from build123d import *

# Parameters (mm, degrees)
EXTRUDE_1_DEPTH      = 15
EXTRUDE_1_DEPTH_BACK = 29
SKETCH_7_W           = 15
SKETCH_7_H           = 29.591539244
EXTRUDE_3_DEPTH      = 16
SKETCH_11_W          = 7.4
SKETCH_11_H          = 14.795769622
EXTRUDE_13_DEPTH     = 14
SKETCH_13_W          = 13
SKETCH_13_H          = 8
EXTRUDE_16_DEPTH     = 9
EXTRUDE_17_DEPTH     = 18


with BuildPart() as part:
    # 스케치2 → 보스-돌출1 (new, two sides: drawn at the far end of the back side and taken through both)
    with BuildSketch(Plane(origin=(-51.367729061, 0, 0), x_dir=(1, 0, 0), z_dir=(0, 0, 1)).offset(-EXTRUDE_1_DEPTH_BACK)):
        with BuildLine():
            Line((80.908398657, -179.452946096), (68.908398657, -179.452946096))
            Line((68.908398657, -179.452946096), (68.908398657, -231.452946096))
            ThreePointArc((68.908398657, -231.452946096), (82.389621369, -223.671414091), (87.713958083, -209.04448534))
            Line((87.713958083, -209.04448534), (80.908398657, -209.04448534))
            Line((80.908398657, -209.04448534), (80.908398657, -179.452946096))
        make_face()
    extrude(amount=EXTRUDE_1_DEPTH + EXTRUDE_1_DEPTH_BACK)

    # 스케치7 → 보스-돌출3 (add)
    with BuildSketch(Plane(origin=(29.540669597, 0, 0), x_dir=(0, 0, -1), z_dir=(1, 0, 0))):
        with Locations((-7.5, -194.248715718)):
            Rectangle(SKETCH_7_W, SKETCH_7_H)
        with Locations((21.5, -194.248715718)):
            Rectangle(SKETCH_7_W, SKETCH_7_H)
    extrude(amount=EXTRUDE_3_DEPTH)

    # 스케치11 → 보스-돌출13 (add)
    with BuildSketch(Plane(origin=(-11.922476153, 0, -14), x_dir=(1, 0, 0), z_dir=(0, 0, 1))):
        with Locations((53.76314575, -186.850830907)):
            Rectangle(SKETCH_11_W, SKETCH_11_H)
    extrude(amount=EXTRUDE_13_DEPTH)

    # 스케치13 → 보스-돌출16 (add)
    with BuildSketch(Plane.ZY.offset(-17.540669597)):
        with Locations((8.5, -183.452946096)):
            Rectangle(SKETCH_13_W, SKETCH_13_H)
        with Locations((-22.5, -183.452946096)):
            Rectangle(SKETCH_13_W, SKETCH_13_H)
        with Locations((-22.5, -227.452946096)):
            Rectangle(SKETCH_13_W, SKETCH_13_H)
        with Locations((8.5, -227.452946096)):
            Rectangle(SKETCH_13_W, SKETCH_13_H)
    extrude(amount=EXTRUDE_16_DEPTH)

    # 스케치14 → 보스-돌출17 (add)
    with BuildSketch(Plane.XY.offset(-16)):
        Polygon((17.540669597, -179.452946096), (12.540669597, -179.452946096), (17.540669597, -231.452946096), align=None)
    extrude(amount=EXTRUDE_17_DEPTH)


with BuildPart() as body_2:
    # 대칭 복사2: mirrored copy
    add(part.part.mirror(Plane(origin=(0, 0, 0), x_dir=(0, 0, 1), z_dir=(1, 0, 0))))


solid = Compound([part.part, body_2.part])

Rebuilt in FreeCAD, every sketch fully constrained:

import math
import FreeCAD as App
import Part
import Sketcher


def add_polygon(sketch, points):
    """Adds a closed chain of lines whose ends are joined by coincident constraints."""
    first, n = sketch.GeometryCount, len(points)
    for a, b in zip(points, points[1:] + points[:1]):
        sketch.addGeometry(Part.LineSegment(App.Vector(*a, 0), App.Vector(*b, 0)), False)
    for i in range(n):
        sketch.addConstraint(Sketcher.Constraint("Coincident", first + i, 2, first + (i + 1) % n, 1))

doc = App.newDocument("Part")
body = doc.addObject("PartDesign::Body", "Body")

# Sketch on XY plane
sketch1 = doc.addObject("Sketcher::SketchObject", "Sketch")
body.addObject(sketch1)
sketch1.AttachmentSupport = (doc.XY_Plane, [""])
sketch1.MapMode = "FlatFace"
sketch1.addGeometry(Part.LineSegment(App.Vector(30, -179, 0), App.Vector(18, -179, 0)), False)
sketch1.addGeometry(Part.LineSegment(App.Vector(18, -179, 0), App.Vector(18, -231, 0)), False)
sketch1.addGeometry(Part.ArcOfCircle(Part.Circle(App.Vector(14, -209, 0), App.Vector(0, 0, 1), 23), math.radians(-80), math.radians(0)), False)
sketch1.addGeometry(Part.LineSegment(App.Vector(36, -209, 0), App.Vector(30, -209, 0)), False)
sketch1.addGeometry(Part.LineSegment(App.Vector(30, -209, 0), App.Vector(30, -179, 0)), False)
sketch1.addConstraint(Sketcher.Constraint("Coincident", 0, 2, 1, 1))
sketch1.addConstraint(Sketcher.Constraint("Coincident", 1, 2, 2, 1))
sketch1.addConstraint(Sketcher.Constraint("Coincident", 2, 2, 3, 1))
sketch1.addConstraint(Sketcher.Constraint("Coincident", 3, 2, 4, 1))
sketch1.addConstraint(Sketcher.Constraint("Coincident", 4, 2, 0, 1))
sketch1.addConstraint(Sketcher.Constraint("Horizontal", 0))
sketch1.addConstraint(Sketcher.Constraint("Vertical", 1))
sketch1.addConstraint(Sketcher.Constraint("Horizontal", 3))
sketch1.addConstraint(Sketcher.Constraint("Vertical", 4))
sketch1.addConstraint(Sketcher.Constraint("DistanceX", 0, 2, 0, 1, 12.0))
sketch1.addConstraint(Sketcher.Constraint("DistanceY", 1, 2, 1, 1, 52.0))
sketch1.addConstraint(Sketcher.Constraint("Radius", 2, 22.753595))
sketch1.addConstraint(Sketcher.Constraint("DistanceX", 3, 2, 3, 1, 6.805559))
sketch1.addConstraint(Sketcher.Constraint("DistanceY", 4, 1, 4, 2, 29.591539))
sketch1.addConstraint(Sketcher.Constraint("DistanceX", -1, 1, 0, 2, 17.54067))
sketch1.addConstraint(Sketcher.Constraint("DistanceY", 2, 3, -1, 1, 209.044485))
pad1 = doc.addObject("PartDesign::Pad", "Pad")
body.addObject(pad1)
pad1.Profile = sketch1
pad1.Type = "TwoLengths"
pad1.Length = 15
pad1.Length2 = 29

# Sketch on YZ plane
sketch2 = doc.addObject("Sketcher::SketchObject", "Sketch001")
body.addObject(sketch2)
sketch2.AttachmentSupport = (doc.YZ_Plane, [""])
sketch2.MapMode = "FlatFace"
sketch2.AttachmentOffset = App.Placement(App.Vector(0, 0, 29.54067), App.Rotation())
add_polygon(sketch2, [(-179, 15), (-209, 15), (-209, 0), (-179, 0)])  # lines 0-3
add_polygon(sketch2, [(-179, -14), (-209, -14), (-209, -29), (-179, -29)])  # lines 4-7
sketch2.addConstraint(Sketcher.Constraint("Horizontal", 0))
sketch2.addConstraint(Sketcher.Constraint("Vertical", 1))
sketch2.addConstraint(Sketcher.Constraint("Horizontal", 2))
sketch2.addConstraint(Sketcher.Constraint("Vertical", 3))
sketch2.addConstraint(Sketcher.Constraint("Horizontal", 4))
sketch2.addConstraint(Sketcher.Constraint("Vertical", 5))
sketch2.addConstraint(Sketcher.Constraint("Horizontal", 6))
sketch2.addConstraint(Sketcher.Constraint("Vertical", 7))
sketch2.addConstraint(Sketcher.Constraint("PointOnObject", 1, 2, -1))
sketch2.addConstraint(Sketcher.Constraint("Vertical", 1, 2, 4, 2))
sketch2.addConstraint(Sketcher.Constraint("Vertical", 3, 2, 6, 2))
sketch2.addConstraint(Sketcher.Constraint("Equal", 3, 5))
sketch2.addConstraint(Sketcher.Constraint("DistanceY", 1, 2, 1, 1, 15.0))
sketch2.addConstraint(Sketcher.Constraint("DistanceY", 4, 2, -1, 1, 14.0))
sketch2.addConstraint(Sketcher.Constraint("DistanceX", 0, 2, 0, 1, 29.591539))
sketch2.addConstraint(Sketcher.Constraint("DistanceX", 0, 2, -1, 1, 209.044485))
pad2 = doc.addObject("PartDesign::Pad", "Pad001")
body.addObject(pad2)
pad2.Profile = sketch2
pad2.Length = 16

# Sketch on XY plane
sketch3 = doc.addObject("Sketcher::SketchObject", "Sketch002")
body.addObject(sketch3)
sketch3.AttachmentSupport = (doc.XY_Plane, [""])
sketch3.MapMode = "FlatFace"
sketch3.AttachmentOffset = App.Placement(App.Vector(0, 0, -14), App.Rotation())
add_polygon(sketch3, [(38, -179), (38, -194), (46, -194), (46, -179)])  # lines 0-3
sketch3.addConstraint(Sketcher.Constraint("Vertical", 0))
sketch3.addConstraint(Sketcher.Constraint("Horizontal", 1))
sketch3.addConstraint(Sketcher.Constraint("Vertical", 2))
sketch3.addConstraint(Sketcher.Constraint("Horizontal", 3))
sketch3.addConstraint(Sketcher.Constraint("DistanceX", 1, 1, 1, 2, 7.4))
sketch3.addConstraint(Sketcher.Constraint("DistanceY", 0, 2, 0, 1, 14.79577))
sketch3.addConstraint(Sketcher.Constraint("DistanceX", -1, 1, 0, 2, 38.14067))
sketch3.addConstraint(Sketcher.Constraint("DistanceY", 0, 2, -1, 1, 194.248716))
pad3 = doc.addObject("PartDesign::Pad", "Pad002")
body.addObject(pad3)
pad3.Profile = sketch3
pad3.Length = 14

# Sketch on YZ plane
sketch4 = doc.addObject("Sketcher::SketchObject", "Sketch003")
body.addObject(sketch4)
sketch4.AttachmentSupport = (doc.YZ_Plane, [""])
sketch4.MapMode = "FlatFace"
sketch4.AttachmentOffset = App.Placement(App.Vector(0, 0, 17.54067), App.Rotation())
add_polygon(sketch4, [(-179, 2), (-187, 2), (-187, 15), (-179, 15)])  # lines 0-3
add_polygon(sketch4, [(-179, -29), (-187, -29), (-187, -16), (-179, -16)])  # lines 4-7
add_polygon(sketch4, [(-223, -29), (-231, -29), (-231, -16), (-223, -16)])  # lines 8-11
add_polygon(sketch4, [(-223, 2), (-231, 2), (-231, 15), (-223, 15)])  # lines 12-15
sketch4.addConstraint(Sketcher.Constraint("Horizontal", 0))
sketch4.addConstraint(Sketcher.Constraint("Vertical", 1))
sketch4.addConstraint(Sketcher.Constraint("Horizontal", 2))
sketch4.addConstraint(Sketcher.Constraint("Vertical", 3))
sketch4.addConstraint(Sketcher.Constraint("Horizontal", 4))
sketch4.addConstraint(Sketcher.Constraint("Vertical", 5))
sketch4.addConstraint(Sketcher.Constraint("Horizontal", 6))
sketch4.addConstraint(Sketcher.Constraint("Vertical", 7))
sketch4.addConstraint(Sketcher.Constraint("Horizontal", 8))
sketch4.addConstraint(Sketcher.Constraint("Vertical", 9))
sketch4.addConstraint(Sketcher.Constraint("Horizontal", 10))
sketch4.addConstraint(Sketcher.Constraint("Vertical", 11))
sketch4.addConstraint(Sketcher.Constraint("Horizontal", 12))
sketch4.addConstraint(Sketcher.Constraint("Vertical", 13))
sketch4.addConstraint(Sketcher.Constraint("Horizontal", 14))
sketch4.addConstraint(Sketcher.Constraint("Vertical", 15))
sketch4.addConstraint(Sketcher.Constraint("Horizontal", 7, 2, 8, 2))
sketch4.addConstraint(Sketcher.Constraint("Horizontal", 6, 2, 9, 2))
sketch4.addConstraint(Sketcher.Constraint("Horizontal", 3, 2, 12, 2))
sketch4.addConstraint(Sketcher.Constraint("Horizontal", 2, 2, 13, 2))
sketch4.addConstraint(Sketcher.Constraint("Vertical", 1, 2, 4, 2))
sketch4.addConstraint(Sketcher.Constraint("Vertical", 3, 2, 6, 2))
sketch4.addConstraint(Sketcher.Constraint("Vertical", 9, 2, 12, 2))
sketch4.addConstraint(Sketcher.Constraint("Vertical", 11, 2, 14, 2))
sketch4.addConstraint(Sketcher.Constraint("Equal", 6, 8))
sketch4.addConstraint(Sketcher.Constraint("Equal", 3, 5))
sketch4.addConstraint(Sketcher.Constraint("DistanceX", 0, 2, 0, 1, 8.0))
sketch4.addConstraint(Sketcher.Constraint("DistanceY", 1, 1, 1, 2, 13.0))
sketch4.addConstraint(Sketcher.Constraint("DistanceY", -1, 1, 0, 2, 2.0))
sketch4.addConstraint(Sketcher.Constraint("DistanceY", 4, 2, -1, 1, 29.0))
sketch4.addConstraint(Sketcher.Constraint("DistanceX", 8, 2, 4, 2, 44.0))
sketch4.addConstraint(Sketcher.Constraint("DistanceX", 0, 2, -1, 1, 187.452946))
pad4 = doc.addObject("PartDesign::Pad", "Pad003")
body.addObject(pad4)
pad4.Profile = sketch4
pad4.Length = 9
pad4.Reversed = True

# Sketch on XY plane
sketch5 = doc.addObject("Sketcher::SketchObject", "Sketch004")
body.addObject(sketch5)
sketch5.AttachmentSupport = (doc.XY_Plane, [""])
sketch5.MapMode = "FlatFace"
sketch5.AttachmentOffset = App.Placement(App.Vector(0, 0, -16), App.Rotation())
add_polygon(sketch5, [(18, -179), (13, -179), (18, -231)])  # lines 0-2
sketch5.addConstraint(Sketcher.Constraint("Horizontal", 0))
sketch5.addConstraint(Sketcher.Constraint("Vertical", 2))
sketch5.addConstraint(Sketcher.Constraint("DistanceX", 0, 2, 0, 1, 5.0))
sketch5.addConstraint(Sketcher.Constraint("DistanceY", 2, 1, 2, 2, 52.0))
sketch5.addConstraint(Sketcher.Constraint("DistanceX", -1, 1, 0, 2, 12.54067))
sketch5.addConstraint(Sketcher.Constraint("DistanceY", 0, 2, -1, 1, 179.452946))
pad5 = doc.addObject("PartDesign::Pad", "Pad004")
body.addObject(pad5)
pad5.Profile = sketch5
pad5.Length = 18
body2 = doc.addObject("PartDesign::Body", "Body001")
doc.recompute()

mirroring = doc.addObject("Part::Mirroring", "Mirroring")
mirroring.Source = body
mirroring.Base = App.Vector(0, 0, 0)
mirroring.Normal = App.Vector(1, 0, 0)
body2.BaseFeature = mirroring
doc.recompute()
mirroring.Visibility = False

doc.recompute()
